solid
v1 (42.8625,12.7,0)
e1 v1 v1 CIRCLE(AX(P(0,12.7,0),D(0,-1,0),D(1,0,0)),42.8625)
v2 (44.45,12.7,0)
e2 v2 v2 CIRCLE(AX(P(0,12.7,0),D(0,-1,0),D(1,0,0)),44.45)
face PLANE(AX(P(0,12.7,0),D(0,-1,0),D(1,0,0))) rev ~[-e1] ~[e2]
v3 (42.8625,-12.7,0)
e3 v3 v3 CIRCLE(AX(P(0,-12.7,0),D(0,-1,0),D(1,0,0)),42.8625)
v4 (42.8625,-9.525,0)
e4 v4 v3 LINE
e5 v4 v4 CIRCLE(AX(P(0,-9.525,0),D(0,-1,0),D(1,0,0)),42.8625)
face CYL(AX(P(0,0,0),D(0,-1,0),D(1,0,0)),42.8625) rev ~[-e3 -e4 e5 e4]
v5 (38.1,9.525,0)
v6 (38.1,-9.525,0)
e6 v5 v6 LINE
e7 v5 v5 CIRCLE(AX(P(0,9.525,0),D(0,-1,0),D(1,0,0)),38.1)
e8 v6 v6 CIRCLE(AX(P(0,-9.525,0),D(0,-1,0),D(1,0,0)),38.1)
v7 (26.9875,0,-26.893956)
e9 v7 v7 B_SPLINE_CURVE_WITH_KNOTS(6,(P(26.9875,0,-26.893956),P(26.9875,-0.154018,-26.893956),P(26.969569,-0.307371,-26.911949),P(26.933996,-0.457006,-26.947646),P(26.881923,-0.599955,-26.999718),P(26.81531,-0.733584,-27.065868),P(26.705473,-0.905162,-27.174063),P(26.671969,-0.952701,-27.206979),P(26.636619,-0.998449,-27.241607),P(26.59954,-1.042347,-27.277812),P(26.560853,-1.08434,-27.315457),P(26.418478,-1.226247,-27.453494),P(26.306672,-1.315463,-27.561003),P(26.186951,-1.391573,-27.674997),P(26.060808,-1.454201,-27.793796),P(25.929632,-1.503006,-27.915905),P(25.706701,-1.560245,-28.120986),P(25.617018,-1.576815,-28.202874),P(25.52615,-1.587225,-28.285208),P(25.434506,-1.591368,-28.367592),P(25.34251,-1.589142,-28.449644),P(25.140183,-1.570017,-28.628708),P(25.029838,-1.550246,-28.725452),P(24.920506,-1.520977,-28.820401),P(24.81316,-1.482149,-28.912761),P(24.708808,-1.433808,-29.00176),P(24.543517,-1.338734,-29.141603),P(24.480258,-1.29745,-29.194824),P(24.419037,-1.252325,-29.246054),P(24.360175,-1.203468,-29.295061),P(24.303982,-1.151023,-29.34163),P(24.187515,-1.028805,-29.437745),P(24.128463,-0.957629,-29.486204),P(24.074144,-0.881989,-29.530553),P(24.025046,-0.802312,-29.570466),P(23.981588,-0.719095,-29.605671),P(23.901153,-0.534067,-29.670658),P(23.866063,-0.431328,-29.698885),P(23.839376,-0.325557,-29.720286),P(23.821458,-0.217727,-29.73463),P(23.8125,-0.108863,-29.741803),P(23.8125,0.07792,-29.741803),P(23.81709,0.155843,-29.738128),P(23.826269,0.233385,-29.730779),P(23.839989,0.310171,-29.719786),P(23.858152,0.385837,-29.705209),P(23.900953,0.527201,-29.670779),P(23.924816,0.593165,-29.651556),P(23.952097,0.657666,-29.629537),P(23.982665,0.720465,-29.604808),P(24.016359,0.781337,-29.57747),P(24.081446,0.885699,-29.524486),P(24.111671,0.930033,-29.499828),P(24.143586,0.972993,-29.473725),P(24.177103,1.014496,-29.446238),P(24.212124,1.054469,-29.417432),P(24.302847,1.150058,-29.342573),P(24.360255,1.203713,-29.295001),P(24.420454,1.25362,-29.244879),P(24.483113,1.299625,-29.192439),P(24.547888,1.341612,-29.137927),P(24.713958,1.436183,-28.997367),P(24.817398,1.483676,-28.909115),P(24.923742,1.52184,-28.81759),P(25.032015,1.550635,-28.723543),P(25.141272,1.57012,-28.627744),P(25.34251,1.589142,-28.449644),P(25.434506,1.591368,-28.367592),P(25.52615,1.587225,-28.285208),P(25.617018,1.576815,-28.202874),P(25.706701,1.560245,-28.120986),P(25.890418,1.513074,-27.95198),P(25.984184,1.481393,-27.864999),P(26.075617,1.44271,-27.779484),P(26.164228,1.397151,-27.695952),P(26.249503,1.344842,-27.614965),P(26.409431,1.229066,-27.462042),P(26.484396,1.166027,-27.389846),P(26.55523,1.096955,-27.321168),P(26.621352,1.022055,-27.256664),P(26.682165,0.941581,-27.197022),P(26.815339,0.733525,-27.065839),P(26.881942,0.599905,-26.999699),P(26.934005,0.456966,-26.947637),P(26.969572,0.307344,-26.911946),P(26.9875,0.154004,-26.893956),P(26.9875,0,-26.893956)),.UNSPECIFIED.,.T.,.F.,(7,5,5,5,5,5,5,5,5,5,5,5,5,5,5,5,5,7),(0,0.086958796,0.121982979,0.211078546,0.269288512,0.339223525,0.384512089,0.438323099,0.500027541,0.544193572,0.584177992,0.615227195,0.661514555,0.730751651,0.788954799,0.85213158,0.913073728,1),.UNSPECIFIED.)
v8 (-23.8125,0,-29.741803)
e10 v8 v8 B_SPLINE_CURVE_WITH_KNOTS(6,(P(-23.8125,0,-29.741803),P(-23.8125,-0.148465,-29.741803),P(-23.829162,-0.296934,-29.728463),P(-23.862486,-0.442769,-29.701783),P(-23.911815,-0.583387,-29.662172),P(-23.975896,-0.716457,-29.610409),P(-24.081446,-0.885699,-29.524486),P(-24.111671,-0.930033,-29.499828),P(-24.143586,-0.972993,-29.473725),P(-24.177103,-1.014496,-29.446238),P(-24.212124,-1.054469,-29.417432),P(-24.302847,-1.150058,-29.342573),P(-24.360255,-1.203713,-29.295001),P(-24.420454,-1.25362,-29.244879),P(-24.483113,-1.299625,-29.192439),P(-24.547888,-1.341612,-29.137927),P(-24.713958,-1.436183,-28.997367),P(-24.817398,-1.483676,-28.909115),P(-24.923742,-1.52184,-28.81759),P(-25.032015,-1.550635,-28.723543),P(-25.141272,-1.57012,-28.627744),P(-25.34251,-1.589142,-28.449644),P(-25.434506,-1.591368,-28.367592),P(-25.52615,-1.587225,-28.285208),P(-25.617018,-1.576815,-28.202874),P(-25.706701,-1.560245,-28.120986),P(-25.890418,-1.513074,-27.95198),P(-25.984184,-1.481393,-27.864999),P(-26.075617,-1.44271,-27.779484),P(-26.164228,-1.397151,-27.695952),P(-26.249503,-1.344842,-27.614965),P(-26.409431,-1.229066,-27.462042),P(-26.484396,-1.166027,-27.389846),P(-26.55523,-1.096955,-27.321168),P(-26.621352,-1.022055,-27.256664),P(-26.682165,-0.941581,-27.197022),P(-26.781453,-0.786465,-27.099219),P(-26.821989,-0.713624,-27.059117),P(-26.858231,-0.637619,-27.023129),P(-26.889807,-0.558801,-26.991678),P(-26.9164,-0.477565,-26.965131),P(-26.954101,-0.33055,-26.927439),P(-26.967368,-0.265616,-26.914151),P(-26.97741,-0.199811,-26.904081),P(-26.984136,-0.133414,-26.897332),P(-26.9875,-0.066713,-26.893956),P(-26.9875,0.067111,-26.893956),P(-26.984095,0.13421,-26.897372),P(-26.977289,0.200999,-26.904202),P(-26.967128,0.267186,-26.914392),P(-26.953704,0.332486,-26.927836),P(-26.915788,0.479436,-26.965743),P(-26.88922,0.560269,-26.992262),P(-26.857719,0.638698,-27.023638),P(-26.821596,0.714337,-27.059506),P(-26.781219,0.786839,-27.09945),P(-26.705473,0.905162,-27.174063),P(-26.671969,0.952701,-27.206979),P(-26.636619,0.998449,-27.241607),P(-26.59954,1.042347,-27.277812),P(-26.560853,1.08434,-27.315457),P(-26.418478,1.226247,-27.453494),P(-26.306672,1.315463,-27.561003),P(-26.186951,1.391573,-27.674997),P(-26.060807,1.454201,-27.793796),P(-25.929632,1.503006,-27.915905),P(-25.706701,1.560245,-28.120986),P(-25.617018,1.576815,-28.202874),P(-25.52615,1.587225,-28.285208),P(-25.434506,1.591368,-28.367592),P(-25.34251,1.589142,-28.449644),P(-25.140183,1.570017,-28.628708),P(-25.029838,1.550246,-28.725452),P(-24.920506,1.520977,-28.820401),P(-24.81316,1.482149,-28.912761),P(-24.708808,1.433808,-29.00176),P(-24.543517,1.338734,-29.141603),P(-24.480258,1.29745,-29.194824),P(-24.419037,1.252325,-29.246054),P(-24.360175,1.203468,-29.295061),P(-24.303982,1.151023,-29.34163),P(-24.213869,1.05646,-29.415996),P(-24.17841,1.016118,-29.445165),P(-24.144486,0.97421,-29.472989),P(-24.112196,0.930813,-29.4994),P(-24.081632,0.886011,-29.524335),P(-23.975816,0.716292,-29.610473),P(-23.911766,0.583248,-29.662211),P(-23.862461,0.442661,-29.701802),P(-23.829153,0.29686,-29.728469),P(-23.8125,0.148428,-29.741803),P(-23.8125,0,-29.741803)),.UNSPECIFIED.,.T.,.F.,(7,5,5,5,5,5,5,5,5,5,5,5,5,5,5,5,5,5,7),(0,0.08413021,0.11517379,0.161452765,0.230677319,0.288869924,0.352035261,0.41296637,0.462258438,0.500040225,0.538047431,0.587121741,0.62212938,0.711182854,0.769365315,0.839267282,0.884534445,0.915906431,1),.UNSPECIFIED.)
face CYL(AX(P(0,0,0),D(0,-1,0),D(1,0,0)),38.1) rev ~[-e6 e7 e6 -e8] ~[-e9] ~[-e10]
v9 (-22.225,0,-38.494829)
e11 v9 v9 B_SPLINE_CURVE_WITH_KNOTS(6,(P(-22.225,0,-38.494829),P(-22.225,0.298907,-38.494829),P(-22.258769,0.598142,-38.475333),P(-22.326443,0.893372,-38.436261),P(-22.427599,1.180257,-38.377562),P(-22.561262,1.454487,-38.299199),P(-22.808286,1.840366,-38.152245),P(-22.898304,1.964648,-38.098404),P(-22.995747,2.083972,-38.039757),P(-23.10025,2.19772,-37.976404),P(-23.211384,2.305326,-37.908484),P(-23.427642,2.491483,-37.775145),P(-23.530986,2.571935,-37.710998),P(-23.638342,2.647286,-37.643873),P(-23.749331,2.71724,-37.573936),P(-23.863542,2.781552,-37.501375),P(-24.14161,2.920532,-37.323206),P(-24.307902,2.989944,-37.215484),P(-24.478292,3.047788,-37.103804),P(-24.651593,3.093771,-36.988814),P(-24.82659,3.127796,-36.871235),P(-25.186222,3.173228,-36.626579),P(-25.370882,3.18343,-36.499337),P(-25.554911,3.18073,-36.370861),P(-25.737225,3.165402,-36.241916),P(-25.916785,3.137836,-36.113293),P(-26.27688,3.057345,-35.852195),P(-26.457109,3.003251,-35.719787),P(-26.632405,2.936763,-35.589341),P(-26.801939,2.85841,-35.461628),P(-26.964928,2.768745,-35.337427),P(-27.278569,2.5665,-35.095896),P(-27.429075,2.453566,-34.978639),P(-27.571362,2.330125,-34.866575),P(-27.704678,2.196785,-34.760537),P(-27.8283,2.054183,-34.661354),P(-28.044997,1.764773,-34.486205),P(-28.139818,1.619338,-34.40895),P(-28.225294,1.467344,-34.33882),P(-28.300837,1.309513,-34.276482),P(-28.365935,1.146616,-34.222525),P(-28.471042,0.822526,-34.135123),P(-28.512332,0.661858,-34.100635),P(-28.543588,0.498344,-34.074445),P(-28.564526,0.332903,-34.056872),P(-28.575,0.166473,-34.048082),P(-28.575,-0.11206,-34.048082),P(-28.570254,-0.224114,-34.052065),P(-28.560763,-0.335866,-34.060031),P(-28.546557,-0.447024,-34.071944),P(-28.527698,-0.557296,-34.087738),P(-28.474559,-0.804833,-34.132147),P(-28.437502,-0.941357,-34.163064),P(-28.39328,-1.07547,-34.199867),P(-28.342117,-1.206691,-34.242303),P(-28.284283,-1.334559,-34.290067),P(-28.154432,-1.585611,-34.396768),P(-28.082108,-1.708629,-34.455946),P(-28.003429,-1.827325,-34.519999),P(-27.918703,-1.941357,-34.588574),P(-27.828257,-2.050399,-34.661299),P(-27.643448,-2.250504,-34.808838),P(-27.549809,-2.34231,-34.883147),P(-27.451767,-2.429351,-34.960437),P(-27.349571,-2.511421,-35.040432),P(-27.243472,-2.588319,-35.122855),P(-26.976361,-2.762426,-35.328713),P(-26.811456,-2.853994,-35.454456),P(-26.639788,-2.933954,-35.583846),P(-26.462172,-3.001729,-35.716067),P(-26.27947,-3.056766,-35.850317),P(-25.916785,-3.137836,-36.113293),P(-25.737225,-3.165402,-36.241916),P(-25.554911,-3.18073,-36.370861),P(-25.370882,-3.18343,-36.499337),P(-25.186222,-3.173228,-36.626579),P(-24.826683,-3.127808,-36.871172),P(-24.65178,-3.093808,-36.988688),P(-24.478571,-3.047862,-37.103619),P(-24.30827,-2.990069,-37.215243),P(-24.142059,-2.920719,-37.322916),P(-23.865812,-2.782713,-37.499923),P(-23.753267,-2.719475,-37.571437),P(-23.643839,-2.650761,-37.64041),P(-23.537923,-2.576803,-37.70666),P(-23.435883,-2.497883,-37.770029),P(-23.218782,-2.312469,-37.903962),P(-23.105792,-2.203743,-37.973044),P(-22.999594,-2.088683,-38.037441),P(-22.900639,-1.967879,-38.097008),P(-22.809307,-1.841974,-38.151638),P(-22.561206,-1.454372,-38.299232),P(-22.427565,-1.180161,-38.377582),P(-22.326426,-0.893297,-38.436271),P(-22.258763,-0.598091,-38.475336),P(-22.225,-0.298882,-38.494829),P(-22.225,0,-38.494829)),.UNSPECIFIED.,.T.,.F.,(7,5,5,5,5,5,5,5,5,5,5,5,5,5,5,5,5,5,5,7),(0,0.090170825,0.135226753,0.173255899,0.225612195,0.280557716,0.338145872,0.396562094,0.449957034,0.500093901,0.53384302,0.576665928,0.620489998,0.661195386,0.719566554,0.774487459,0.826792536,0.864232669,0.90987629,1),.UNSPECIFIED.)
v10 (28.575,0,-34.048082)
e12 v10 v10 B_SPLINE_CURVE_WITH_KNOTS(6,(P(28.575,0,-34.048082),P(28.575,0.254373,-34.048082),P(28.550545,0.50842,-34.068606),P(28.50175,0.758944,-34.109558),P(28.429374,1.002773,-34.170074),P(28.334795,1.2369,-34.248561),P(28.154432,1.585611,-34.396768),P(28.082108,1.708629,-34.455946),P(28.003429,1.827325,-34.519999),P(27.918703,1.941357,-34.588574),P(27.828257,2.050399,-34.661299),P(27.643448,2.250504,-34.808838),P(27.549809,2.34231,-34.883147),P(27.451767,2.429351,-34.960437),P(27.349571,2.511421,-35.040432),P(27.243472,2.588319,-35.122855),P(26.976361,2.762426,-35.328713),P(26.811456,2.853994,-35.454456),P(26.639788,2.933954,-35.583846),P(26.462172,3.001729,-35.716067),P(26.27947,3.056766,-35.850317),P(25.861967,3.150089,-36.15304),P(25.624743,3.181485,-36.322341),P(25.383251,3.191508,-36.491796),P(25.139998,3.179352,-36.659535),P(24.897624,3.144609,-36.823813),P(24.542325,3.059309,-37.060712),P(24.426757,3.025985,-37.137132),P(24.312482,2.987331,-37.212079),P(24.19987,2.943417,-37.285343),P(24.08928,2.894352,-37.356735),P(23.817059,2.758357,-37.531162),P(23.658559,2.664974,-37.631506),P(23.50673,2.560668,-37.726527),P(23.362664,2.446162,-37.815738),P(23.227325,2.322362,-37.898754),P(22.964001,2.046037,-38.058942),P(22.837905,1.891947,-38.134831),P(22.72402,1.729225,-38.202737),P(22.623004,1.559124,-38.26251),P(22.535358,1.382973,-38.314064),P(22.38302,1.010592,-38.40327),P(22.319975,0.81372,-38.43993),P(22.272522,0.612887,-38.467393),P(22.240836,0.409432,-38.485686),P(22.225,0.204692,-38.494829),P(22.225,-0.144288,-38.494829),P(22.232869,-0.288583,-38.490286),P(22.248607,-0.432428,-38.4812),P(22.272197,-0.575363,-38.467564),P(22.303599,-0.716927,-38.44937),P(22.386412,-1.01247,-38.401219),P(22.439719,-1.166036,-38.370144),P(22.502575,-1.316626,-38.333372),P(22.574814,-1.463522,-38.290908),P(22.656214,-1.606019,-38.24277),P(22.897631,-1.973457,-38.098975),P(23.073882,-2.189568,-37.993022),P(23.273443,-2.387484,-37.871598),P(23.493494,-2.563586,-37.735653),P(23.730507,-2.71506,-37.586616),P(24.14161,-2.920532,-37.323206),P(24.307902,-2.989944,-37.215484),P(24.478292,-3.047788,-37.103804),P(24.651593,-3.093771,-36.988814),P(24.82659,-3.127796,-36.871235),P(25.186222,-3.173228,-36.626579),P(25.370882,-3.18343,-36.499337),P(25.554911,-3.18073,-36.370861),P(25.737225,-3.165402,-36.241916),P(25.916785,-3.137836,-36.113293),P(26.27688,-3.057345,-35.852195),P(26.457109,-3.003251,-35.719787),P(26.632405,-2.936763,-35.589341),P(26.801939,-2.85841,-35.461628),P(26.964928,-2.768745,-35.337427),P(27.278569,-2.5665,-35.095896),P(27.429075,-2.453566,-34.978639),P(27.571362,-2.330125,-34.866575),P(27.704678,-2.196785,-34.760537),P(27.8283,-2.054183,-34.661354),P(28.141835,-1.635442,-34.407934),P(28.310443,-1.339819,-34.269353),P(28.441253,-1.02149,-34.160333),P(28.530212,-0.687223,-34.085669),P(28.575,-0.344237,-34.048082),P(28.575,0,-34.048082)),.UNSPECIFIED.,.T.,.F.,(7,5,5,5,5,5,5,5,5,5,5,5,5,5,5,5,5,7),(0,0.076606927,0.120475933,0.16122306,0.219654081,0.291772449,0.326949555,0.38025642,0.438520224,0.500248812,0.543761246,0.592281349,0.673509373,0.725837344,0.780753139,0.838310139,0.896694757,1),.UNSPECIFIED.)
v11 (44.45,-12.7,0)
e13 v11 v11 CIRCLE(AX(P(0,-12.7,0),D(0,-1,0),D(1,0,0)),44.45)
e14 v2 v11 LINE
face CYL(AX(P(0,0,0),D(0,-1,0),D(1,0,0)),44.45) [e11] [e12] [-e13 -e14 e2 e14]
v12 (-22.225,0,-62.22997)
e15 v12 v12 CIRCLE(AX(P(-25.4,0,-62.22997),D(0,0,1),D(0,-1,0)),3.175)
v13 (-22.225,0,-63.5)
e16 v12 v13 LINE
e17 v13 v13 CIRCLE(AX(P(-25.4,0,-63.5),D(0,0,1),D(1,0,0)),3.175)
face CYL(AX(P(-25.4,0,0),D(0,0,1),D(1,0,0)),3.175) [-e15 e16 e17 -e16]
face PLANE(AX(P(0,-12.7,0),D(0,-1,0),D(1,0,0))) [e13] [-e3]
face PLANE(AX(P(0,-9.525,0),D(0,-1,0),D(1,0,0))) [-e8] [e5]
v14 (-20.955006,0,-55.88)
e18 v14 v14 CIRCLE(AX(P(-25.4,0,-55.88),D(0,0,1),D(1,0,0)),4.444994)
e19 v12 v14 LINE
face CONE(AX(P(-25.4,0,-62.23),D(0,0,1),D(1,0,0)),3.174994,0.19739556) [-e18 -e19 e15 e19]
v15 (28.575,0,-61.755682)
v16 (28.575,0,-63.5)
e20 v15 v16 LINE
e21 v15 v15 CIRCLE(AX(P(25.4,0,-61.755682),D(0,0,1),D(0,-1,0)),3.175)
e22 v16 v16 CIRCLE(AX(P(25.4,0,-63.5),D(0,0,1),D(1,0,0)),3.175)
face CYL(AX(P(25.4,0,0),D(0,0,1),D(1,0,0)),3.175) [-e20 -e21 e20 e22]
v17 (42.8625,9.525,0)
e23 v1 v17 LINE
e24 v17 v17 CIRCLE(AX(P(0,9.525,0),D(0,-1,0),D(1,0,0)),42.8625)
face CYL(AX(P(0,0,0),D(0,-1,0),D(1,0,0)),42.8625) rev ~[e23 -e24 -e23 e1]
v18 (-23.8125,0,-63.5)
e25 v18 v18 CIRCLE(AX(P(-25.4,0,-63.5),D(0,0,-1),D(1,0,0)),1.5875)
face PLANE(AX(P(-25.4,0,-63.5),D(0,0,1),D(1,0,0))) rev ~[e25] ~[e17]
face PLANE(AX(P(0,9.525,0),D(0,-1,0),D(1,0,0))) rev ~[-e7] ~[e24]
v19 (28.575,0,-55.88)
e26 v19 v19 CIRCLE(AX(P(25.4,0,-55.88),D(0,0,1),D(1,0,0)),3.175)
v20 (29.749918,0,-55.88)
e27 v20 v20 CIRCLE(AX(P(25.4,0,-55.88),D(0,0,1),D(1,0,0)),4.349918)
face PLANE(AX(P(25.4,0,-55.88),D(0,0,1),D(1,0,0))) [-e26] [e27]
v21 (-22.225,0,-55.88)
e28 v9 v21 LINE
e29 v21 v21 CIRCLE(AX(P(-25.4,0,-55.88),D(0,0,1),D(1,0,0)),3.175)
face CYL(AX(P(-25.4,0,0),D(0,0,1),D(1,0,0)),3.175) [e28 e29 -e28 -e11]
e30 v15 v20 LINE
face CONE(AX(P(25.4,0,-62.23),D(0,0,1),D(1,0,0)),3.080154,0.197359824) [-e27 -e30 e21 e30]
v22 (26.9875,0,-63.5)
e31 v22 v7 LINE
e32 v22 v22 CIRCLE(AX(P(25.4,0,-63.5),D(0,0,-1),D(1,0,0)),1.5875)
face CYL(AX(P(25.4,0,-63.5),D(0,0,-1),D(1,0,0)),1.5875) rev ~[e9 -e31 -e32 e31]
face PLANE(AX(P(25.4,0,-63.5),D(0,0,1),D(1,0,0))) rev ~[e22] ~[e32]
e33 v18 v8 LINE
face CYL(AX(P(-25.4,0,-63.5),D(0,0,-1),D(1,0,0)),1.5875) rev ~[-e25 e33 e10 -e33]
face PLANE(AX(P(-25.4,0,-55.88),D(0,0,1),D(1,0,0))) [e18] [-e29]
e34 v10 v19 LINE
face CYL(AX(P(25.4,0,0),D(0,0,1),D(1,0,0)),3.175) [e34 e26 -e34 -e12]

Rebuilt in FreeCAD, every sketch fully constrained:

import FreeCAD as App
import Part
import Sketcher

V = App.Vector
Q = App.Units.Quantity

doc = App.newDocument("Part")
body = doc.addObject("PartDesign::Body", "Body")

sketch1 = body.newObject("Sketcher::SketchObject", "Sketch")
sketch1.AttachmentSupport = (doc.getObject("XZ_Plane"), [""])
sketch1.MapMode = "FlatFace"
sketch1.addGeometry(Part.Circle(V(0, 0, 0), V(0, 0, 1), 44), False)
sketch1.addConstraint(Sketcher.Constraint("Coincident", 0, 3, -1, 1))
sketch1.addConstraint(Sketcher.Constraint("Diameter", 0, Q("3.5 in")))
pad1 = body.newObject("PartDesign::Pad", "Pad")
pad1.Profile = sketch1
pad1.Length = Q("1 in")
pad1.Midplane = True

sketch2 = body.newObject("Sketcher::SketchObject", "Sketch001")
sketch2.AttachmentSupport = (doc.getObject("XZ_Plane"), [""])
sketch2.MapMode = "FlatFace"
sketch2.addGeometry(Part.Circle(V(0, 0, 0), V(0, 0, 1), 43), False)
sketch2.addConstraint(Sketcher.Constraint("Coincident", 0, 3, -1, 1))
sketch2.addConstraint(Sketcher.Constraint("Diameter", 0, Q("3.375 in")))
pocket1 = body.newObject("PartDesign::Pocket", "Pocket")
pocket1.Profile = sketch2
pocket1.Length = Q("1 in")
pocket1.Midplane = True

sketch3 = body.newObject("Sketcher::SketchObject", "Sketch002")
sketch3.AttachmentSupport = (doc.getObject("XZ_Plane"), [""])
sketch3.MapMode = "FlatFace"
sketch3.addGeometry(Part.Circle(V(0, 0, 0), V(0, 0, 1), 43), False)
sketch3.addConstraint(Sketcher.Constraint("Coincident", 0, 3, -1, 1))
sketch3.addConstraint(Sketcher.Constraint("Diameter", 0, Q("3.375 in")))
pad2 = body.newObject("PartDesign::Pad", "Pad001")
pad2.Profile = sketch3
pad2.Length = Q("0.75 in")
pad2.Midplane = True

sketch4 = body.newObject("Sketcher::SketchObject", "Sketch003")
sketch4.AttachmentSupport = (doc.getObject("XY_Plane"), [""])
sketch4.MapMode = "FlatFace"
sketch4.addGeometry(Part.Circle(V(25.4, 0, 0), V(0, 0, 1), 3.2), False)
sketch4.addConstraint(Sketcher.Constraint("PointOnObject", 0, 3, -1))
sketch4.addConstraint(Sketcher.Constraint("Diameter", 0, Q("0.25 in")))
sketch4.addConstraint(Sketcher.Constraint("DistanceX", -1, 1, 0, 3, Q("1 in")))
pad3 = body.newObject("PartDesign::Pad", "Pad002")
pad3.Profile = sketch4
pad3.Length = Q("2.5 in")
pad3.Reversed = True

sketch5 = body.newObject("Sketcher::SketchObject", "Sketch004")
sketch5.AttachmentSupport = (doc.getObject("XY_Plane"), [""])
sketch5.MapMode = "FlatFace"
sketch5.addGeometry(Part.Circle(V(-25.4, 0, 0), V(0, 0, 1), 3.2), False)
sketch5.addConstraint(Sketcher.Constraint("PointOnObject", 0, 3, -1))
sketch5.addConstraint(Sketcher.Constraint("Diameter", 0, Q("0.25 in")))
sketch5.addConstraint(Sketcher.Constraint("DistanceX", 0, 3, -1, 1, Q("1 in")))
pad4 = body.newObject("PartDesign::Pad", "Pad003")
pad4.Profile = sketch5
pad4.Length = Q("2.5 in")
pad4.Reversed = True

sketch6 = body.newObject("Sketcher::SketchObject", "Sketch005")
sketch6.AttachmentSupport = (doc.getObject("XZ_Plane"), [""])
sketch6.MapMode = "FlatFace"
sketch6.addGeometry(Part.LineSegment(V(28.5, -55.9, 0), V(28.5, -62.2, 0)), False)
sketch6.addGeometry(Part.LineSegment(V(28.5, -62.2, 0), V(29.7, -55.9, 0)), False)
sketch6.addGeometry(Part.LineSegment(V(29.7, -55.9, 0), V(28.5, -55.9, 0)), False)
sketch6.addGeometry(Part.LineSegment(V(25.4, -62.2, 0), V(25.4, -55.9, 0)), True)
sketch6.addConstraint(Sketcher.Constraint("Coincident", 0, 2, 1, 1))
sketch6.addConstraint(Sketcher.Constraint("Coincident", 1, 2, 2, 1))
sketch6.addConstraint(Sketcher.Constraint("Coincident", 2, 2, 0, 1))
sketch6.addConstraint(Sketcher.Constraint("Horizontal", 2))
sketch6.addConstraint(Sketcher.Constraint("Vertical", 3))
sketch6.addConstraint(Sketcher.Constraint("Horizontal", 0, 2, 3, 1))
sketch6.addConstraint(Sketcher.Constraint("Horizontal", 2, 2, 3, 2))
sketch6.addConstraint(Sketcher.Constraint("DistanceX", -1, 1, 3, 1, Q("1 in")))
sketch6.addConstraint(Sketcher.Constraint("DistanceX", 2, 2, 2, 1, Q("0.05 in")))
sketch6.addConstraint(Sketcher.Constraint("DistanceY", 3, 1, 3, 2, Q("0.25 in")))
sketch6.addConstraint(Sketcher.Constraint("DistanceY", 1, 2, -1, 1, Q("2.2 in")))
sketch6.addConstraint(Sketcher.Constraint("Distance", 1, Q("6.475709 mm")))
sketch6.addConstraint(Sketcher.Constraint("DistanceX", -1, 1, 1, 2, Q("29.749918 mm")))
revolution = body.newObject("PartDesign::Revolution", "Revolution")
revolution.Profile = sketch6
revolution.ReferenceAxis = (sketch6, ["Axis0"])
revolution.Angle = 360

sketch7 = body.newObject("Sketcher::SketchObject", "Sketch006")
sketch7.AttachmentSupport = (doc.getObject("XZ_Plane"), [""])
sketch7.MapMode = "FlatFace"
sketch7.addGeometry(Part.LineSegment(V(-22.2, -55.9, 0), V(-22.2, -62.2, 0)), False)
sketch7.addGeometry(Part.LineSegment(V(-22.2, -62.2, 0), V(-21, -55.9, 0)), False)
sketch7.addGeometry(Part.LineSegment(V(-21, -55.9, 0), V(-22.2, -55.9, 0)), False)
sketch7.addGeometry(Part.LineSegment(V(-25.4, -62.2, 0), V(-25.4, -55.9, 0)), True)
sketch7.addConstraint(Sketcher.Constraint("Coincident", 0, 2, 1, 1))
sketch7.addConstraint(Sketcher.Constraint("Coincident", 1, 2, 2, 1))
sketch7.addConstraint(Sketcher.Constraint("Coincident", 2, 2, 0, 1))
sketch7.addConstraint(Sketcher.Constraint("Vertical", 0))
sketch7.addConstraint(Sketcher.Constraint("Horizontal", 2))
sketch7.addConstraint(Sketcher.Constraint("Vertical", 3))
sketch7.addConstraint(Sketcher.Constraint("Horizontal", 0, 2, 3, 1))
sketch7.addConstraint(Sketcher.Constraint("Horizontal", 2, 2, 3, 2))
sketch7.addConstraint(Sketcher.Constraint("DistanceX", 3, 1, -1, 1, Q("1 in")))
sketch7.addConstraint(Sketcher.Constraint("DistanceX", 2, 2, 2, 1, Q("0.05 in")))
sketch7.addConstraint(Sketcher.Constraint("DistanceY", 0, 2, 0, 1, Q("0.25 in")))
sketch7.addConstraint(Sketcher.Constraint("DistanceY", 1, 2, -1, 1, Q("2.2 in")))
sketch7.addConstraint(Sketcher.Constraint("DistanceX", 0, 2, -1, 1, Q("22.225006 mm")))
revolution2 = body.newObject("PartDesign::Revolution", "Revolution001")
revolution2.Profile = sketch7
revolution2.ReferenceAxis = (sketch7, ["Axis0"])
revolution2.Angle = 360

sketch8 = body.newObject("Sketcher::SketchObject", "Sketch007")
sketch8.AttachmentSupport = (doc.getObject("XY_Plane"), [""])
sketch8.MapMode = "FlatFace"
sketch8.AttachmentOffset = App.Placement(V(0, 0, -2.5 * 25.4), App.Rotation())
sketch8.addGeometry(Part.Circle(V(25.4, 0, 0), V(0, 0, 1), 1.6), False)
sketch8.addConstraint(Sketcher.Constraint("PointOnObject", 0, 3, -1))
sketch8.addConstraint(Sketcher.Constraint("Diameter", 0, Q("0.125 in")))
sketch8.addConstraint(Sketcher.Constraint("DistanceX", -1, 1, 0, 3, Q("1 in")))
pocket2 = body.newObject("PartDesign::Pocket", "Pocket001")
pocket2.Profile = sketch8
pocket2.Length = Q("3 in")
pocket2.Reversed = True

sketch9 = body.newObject("Sketcher::SketchObject", "Sketch008")
sketch9.AttachmentSupport = (doc.getObject("XY_Plane"), [""])
sketch9.MapMode = "FlatFace"
sketch9.AttachmentOffset = App.Placement(V(0, 0, -2.5 * 25.4), App.Rotation())
sketch9.addGeometry(Part.Circle(V(-25.4, 0, 0), V(0, 0, 1), 1.6), False)
sketch9.addConstraint(Sketcher.Constraint("PointOnObject", 0, 3, -1))
sketch9.addConstraint(Sketcher.Constraint("Diameter", 0, Q("0.125 in")))
sketch9.addConstraint(Sketcher.Constraint("DistanceX", 0, 3, -1, 1, Q("1 in")))
pocket3 = body.newObject("PartDesign::Pocket", "Pocket002")
pocket3.Profile = sketch9
pocket3.Length = Q("2.5 in")
pocket3.Reversed = True

sketch10 = body.newObject("Sketcher::SketchObject", "Sketch009")
sketch10.AttachmentSupport = (doc.getObject("XZ_Plane"), [""])
sketch10.MapMode = "FlatFace"
sketch10.addGeometry(Part.Circle(V(0, 0, 0), V(0, 0, 1), 38), False)
sketch10.addConstraint(Sketcher.Constraint("Coincident", 0, 3, -1, 1))
sketch10.addConstraint(Sketcher.Constraint("Diameter", 0, Q("3 in")))
pocket4 = body.newObject("PartDesign::Pocket", "Pocket003")
pocket4.Profile = sketch10
pocket4.Length = Q("1 in")
pocket4.Midplane = True

doc.recompute()
